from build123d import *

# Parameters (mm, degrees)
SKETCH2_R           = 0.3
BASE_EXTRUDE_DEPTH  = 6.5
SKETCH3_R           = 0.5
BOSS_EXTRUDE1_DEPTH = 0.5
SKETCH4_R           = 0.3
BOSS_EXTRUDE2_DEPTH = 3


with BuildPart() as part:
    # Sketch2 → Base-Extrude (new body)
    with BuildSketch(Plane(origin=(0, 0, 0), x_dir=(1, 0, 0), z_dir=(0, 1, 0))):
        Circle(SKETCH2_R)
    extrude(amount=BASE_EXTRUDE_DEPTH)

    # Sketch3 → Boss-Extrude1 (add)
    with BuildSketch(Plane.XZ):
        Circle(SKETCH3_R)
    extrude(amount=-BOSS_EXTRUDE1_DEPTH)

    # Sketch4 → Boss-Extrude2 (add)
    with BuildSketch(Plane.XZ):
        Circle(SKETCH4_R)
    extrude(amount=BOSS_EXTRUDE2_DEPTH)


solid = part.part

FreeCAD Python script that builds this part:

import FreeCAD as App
import Part
import Sketcher

doc = App.newDocument("Part")
body = doc.addObject("PartDesign::Body", "Body")

# Sketch on XZ plane
sketch1 = body.newObject("Sketcher::SketchObject", "Sketch")
sketch1.AttachmentSupport = (doc.getObject("XZ_Plane"), [""])
sketch1.MapMode = "FlatFace"
sketch1.addGeometry(Part.Circle(App.Vector(0, 0, 0), App.Vector(0, 0, 1), 0.3), False)
sketch1.addConstraint([
    Sketcher.Constraint("Coincident", 0, 3, -1, 1),
    Sketcher.Constraint("Diameter", 0, 0.6),
])
pad1 = body.newObject("PartDesign::Pad", "Pad")
pad1.Profile = sketch1
pad1.Length = 6.5
pad1.Reversed = True

# Sketch on XZ plane
sketch2 = body.newObject("Sketcher::SketchObject", "Sketch001")
sketch2.AttachmentSupport = (doc.getObject("XZ_Plane"), [""])
sketch2.MapMode = "FlatFace"
sketch2.addGeometry(Part.Circle(App.Vector(0, 0, 0), App.Vector(0, 0, 1), 0.5), False)
sketch2.addConstraint([
    Sketcher.Constraint("Coincident", 0, 3, -1, 1),
    Sketcher.Constraint("Diameter", 0, 1.0),
])
pad2 = body.newObject("PartDesign::Pad", "Pad001")
pad2.Profile = sketch2
pad2.Length = 0.5
pad2.Reversed = True

# Sketch on XZ plane
sketch3 = body.newObject("Sketcher::SketchObject", "Sketch002")
sketch3.AttachmentSupport = (doc.getObject("XZ_Plane"), [""])
sketch3.MapMode = "FlatFace"
sketch3.addGeometry(Part.Circle(App.Vector(0, 0, 0), App.Vector(0, 0, 1), 0.3), False)
sketch3.addConstraint([
    Sketcher.Constraint("Coincident", 0, 3, -1, 1),
    Sketcher.Constraint("Diameter", 0, 0.6),
])
pad3 = body.newObject("PartDesign::Pad", "Pad002")
pad3.Profile = sketch3
pad3.Length = 3

doc.recompute()
